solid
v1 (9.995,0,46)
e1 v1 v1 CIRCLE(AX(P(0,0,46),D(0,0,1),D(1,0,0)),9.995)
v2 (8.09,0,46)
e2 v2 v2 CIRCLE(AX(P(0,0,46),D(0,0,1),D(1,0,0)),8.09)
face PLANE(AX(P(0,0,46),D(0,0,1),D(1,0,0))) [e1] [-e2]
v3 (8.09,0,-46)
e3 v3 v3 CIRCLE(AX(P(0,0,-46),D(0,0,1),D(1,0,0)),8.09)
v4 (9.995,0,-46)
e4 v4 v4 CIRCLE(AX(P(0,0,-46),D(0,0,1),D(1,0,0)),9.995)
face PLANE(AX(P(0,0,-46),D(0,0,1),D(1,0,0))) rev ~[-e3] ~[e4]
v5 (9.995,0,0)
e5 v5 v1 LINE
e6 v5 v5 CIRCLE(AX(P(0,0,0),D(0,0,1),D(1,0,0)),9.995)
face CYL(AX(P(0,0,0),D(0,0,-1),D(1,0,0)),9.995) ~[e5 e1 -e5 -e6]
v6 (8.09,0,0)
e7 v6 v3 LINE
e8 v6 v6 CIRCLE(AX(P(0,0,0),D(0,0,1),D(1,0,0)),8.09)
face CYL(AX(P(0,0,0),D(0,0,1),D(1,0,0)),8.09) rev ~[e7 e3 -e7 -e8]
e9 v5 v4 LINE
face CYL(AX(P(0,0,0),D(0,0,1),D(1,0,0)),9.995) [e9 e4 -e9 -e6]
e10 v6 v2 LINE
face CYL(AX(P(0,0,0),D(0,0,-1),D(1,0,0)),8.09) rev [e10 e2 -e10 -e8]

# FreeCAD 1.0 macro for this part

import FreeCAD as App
import Part
import Sketcher
from FreeCAD import Vector
Q = App.Units.Quantity

doc = App.newDocument("Part")
body = doc.addObject("PartDesign::Body", "Body")

# Sketch on XY plane
sketch1 = body.newObject("Sketcher::SketchObject", "Sketch")
sketch1.AttachmentSupport = (doc.getObject("XY_Plane"), [""])
sketch1.MapMode = "FlatFace"
sketch1.addGeometry([
    Part.Circle(Vector(0, 0, 0), Vector(0, 0, 1), 9.995),
    Part.Circle(Vector(0, 0, 0), Vector(0, 0, 1), 8.09),
], False)
sketch1.addConstraint([
    Sketcher.Constraint("Coincident", 0, 3, -1, 1),
    Sketcher.Constraint("Coincident", 1, 3, -1, 1),
    Sketcher.Constraint("Diameter", 0, Q("0.787 in")),
    Sketcher.Constraint("Diameter", 1, Q("0.637 in")),
])
pad1 = body.newObject("PartDesign::Pad", "Pad")
pad1.Profile = sketch1
pad1.Length = 92
pad1.Midplane = True

doc.recompute()
